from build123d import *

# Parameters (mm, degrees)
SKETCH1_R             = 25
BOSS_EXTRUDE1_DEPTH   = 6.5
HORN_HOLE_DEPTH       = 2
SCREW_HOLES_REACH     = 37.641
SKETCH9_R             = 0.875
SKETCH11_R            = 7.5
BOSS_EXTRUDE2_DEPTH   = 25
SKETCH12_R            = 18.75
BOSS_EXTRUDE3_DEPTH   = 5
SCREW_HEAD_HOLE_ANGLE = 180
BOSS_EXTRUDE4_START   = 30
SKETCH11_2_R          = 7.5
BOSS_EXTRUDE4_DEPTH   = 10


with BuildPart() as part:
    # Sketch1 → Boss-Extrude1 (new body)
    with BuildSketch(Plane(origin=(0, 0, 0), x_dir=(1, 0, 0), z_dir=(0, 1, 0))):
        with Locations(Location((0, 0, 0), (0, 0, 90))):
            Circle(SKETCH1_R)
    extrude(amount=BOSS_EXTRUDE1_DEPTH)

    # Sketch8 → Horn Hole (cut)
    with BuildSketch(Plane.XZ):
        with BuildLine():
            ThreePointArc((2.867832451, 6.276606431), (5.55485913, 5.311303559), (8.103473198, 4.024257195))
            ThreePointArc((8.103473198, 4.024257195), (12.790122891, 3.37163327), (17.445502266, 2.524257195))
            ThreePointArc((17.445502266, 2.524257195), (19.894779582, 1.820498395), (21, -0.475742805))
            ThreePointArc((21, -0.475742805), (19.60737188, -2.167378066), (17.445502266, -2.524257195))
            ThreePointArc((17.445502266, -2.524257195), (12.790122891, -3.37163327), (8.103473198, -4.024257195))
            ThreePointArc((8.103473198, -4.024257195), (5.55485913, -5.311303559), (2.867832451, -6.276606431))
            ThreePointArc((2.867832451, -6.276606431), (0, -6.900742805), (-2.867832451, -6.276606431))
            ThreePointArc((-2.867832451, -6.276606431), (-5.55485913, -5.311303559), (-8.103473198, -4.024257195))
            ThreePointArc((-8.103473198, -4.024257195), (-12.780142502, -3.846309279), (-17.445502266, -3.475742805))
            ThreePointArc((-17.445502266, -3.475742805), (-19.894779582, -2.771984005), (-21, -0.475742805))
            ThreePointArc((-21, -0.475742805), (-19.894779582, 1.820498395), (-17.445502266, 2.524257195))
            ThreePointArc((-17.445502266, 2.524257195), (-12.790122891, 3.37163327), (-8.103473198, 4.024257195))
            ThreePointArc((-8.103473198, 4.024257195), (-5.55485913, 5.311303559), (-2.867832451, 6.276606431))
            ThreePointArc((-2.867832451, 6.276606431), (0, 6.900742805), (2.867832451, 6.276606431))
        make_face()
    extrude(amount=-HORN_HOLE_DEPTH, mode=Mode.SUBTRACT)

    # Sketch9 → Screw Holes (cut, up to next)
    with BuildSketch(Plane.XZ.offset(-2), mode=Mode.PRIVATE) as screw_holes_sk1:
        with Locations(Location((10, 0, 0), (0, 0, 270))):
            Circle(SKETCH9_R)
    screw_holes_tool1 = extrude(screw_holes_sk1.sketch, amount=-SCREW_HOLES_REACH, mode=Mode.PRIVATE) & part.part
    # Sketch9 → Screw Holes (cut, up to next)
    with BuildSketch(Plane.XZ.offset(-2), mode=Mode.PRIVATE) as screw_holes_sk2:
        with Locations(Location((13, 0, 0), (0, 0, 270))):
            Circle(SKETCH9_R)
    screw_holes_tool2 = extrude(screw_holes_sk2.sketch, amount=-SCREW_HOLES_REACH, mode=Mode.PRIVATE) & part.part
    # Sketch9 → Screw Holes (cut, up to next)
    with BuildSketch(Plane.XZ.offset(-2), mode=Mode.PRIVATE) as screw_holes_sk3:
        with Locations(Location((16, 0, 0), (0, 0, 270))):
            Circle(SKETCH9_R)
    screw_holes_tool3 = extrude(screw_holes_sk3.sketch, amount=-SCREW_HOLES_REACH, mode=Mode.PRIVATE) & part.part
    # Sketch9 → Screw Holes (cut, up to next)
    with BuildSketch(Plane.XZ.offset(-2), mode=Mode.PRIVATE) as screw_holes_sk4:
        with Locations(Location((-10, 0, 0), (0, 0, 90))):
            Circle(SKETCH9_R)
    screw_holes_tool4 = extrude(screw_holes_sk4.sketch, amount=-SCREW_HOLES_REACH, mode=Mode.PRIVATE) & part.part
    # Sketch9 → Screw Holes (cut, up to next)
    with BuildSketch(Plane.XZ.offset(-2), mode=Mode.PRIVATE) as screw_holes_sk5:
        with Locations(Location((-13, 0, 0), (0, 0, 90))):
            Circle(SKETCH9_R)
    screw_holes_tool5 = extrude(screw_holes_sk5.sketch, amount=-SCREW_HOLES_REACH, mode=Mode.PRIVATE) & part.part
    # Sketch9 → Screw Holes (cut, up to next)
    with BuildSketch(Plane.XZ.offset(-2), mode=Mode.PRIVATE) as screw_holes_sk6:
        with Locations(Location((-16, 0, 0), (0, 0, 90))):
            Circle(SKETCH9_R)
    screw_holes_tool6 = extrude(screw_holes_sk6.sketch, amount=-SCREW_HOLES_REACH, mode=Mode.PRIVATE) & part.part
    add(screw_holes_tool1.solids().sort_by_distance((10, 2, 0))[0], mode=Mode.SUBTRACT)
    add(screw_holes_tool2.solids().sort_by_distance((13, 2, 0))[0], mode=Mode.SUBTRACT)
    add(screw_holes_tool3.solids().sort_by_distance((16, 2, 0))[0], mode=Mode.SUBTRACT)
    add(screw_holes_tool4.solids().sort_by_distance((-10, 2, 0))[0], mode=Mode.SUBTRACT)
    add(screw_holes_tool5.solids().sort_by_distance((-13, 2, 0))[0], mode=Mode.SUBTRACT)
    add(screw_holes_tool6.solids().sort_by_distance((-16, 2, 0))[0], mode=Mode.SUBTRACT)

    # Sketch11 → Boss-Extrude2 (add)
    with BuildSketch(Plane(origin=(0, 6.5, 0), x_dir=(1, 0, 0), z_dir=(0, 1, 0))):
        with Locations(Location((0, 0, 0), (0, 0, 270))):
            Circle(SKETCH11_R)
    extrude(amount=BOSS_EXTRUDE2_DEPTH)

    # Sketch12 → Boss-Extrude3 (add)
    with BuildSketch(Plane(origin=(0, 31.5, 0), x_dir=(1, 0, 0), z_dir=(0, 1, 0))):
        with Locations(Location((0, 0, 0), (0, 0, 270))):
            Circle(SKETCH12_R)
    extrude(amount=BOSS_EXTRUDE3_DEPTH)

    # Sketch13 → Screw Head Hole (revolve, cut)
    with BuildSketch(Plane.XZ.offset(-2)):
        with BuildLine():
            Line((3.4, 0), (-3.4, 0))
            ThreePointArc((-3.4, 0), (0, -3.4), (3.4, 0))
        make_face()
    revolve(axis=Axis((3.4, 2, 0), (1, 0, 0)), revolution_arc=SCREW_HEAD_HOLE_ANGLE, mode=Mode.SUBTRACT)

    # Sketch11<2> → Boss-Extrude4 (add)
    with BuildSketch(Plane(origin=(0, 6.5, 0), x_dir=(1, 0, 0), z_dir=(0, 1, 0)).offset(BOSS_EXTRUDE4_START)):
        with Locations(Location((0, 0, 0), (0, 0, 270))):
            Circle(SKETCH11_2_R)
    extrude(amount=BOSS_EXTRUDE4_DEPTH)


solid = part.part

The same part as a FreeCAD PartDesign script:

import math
import FreeCAD as App
import Part
import Sketcher

V = App.Vector

doc = App.newDocument("Part")
body = doc.addObject("PartDesign::Body", "Body")

# Sketch on XZ plane
sketch1 = doc.addObject("Sketcher::SketchObject", "Sketch")
body.addObject(sketch1)
sketch1.AttachmentSupport = (doc.XZ_Plane, [""])
sketch1.MapMode = "FlatFace"
sketch1.addGeometry(Part.Circle(V(0, 0, 0), V(0, 0, 1), 25), False)
sketch1.addConstraint([
    Sketcher.Constraint("Coincident", 0, 3, -1, 1),
    Sketcher.Constraint("Diameter", 0, 50.0),
])
pad1 = doc.addObject("PartDesign::Pad", "Pad")
body.addObject(pad1)
pad1.Profile = sketch1
pad1.Length = 6.5
pad1.Reversed = True

# Sketch on XZ plane
sketch2 = doc.addObject("Sketcher::SketchObject", "Sketch001")
body.addObject(sketch2)
sketch2.AttachmentSupport = (doc.XZ_Plane, [""])
sketch2.MapMode = "FlatFace"
sketch2.addGeometry([
    Part.ArcOfCircle(Part.Circle(V(-3.6, -16.1, 0), V(0, 0, 1), 23.3), math.radians(59.69), math.radians(73.76)),  # 0
    Part.ArcOfCircle(Part.Circle(V(0, 0, 0), V(0, 0, 1), 6.9), math.radians(65), math.radians(115)),  # 1
    Part.ArcOfCircle(Part.Circle(V(3.6, -16.1, 0), V(0, 0, 1), 23.3), math.radians(106.24), math.radians(120.31)),  # 2
    Part.ArcOfCircle(Part.Circle(V(5.2, -108.7, 0), V(0, 0, 1), 113.5), math.radians(96.73), math.radians(101.51)),  # 3
    Part.ArcOfCircle(Part.Circle(V(-17.9, -0.6, 0), V(0, 0, 1), 3.1), math.radians(82), math.radians(178)),  # 4
    Part.ArcOfCircle(Part.Circle(V(-17.9, -0.4, 0), V(0, 0, 1), 3.1), math.radians(-178), math.radians(-82)),  # 5
    Part.ArcOfCircle(Part.Circle(V(-6.1, 109.5, 0), V(0, 0, 1), 113.5), math.radians(-95.72), math.radians(-91)),  # 6
    Part.ArcOfCircle(Part.Circle(V(3.6, 16.1, 0), V(0, 0, 1), 23.3), math.radians(-120.31), math.radians(-106.24)),  # 7
    Part.ArcOfCircle(Part.Circle(V(0, 0, 0), V(0, 0, 1), 6.9), math.radians(-115), math.radians(-65)),  # 8
    Part.ArcOfCircle(Part.Circle(V(-3.6, 16.1, 0), V(0, 0, 1), 23.3), math.radians(-73.76), math.radians(-59.69)),  # 9
    Part.ArcOfCircle(Part.Circle(V(-5.2, 108.7, 0), V(0, 0, 1), 113.5), math.radians(-83.27), math.radians(-78.49)),  # 10
    Part.ArcOfCircle(Part.Circle(V(18.1, 0.5, 0), V(0, 0, 1), 3.1), math.radians(-101), math.radians(-19)),  # 11
    Part.ArcOfCircle(Part.Circle(V(17.9, -0.6, 0), V(0, 0, 1), 3.1), math.radians(2), math.radians(98)),  # 12
    Part.ArcOfCircle(Part.Circle(V(-5.2, -108.7, 0), V(0, 0, 1), 113.5), math.radians(78.49), math.radians(83.27)),  # 13
], False)
sketch2.addConstraint([
    Sketcher.Constraint("Coincident", 0, 2, 1, 1),
    Sketcher.Constraint("Coincident", 1, 2, 2, 1),
    Sketcher.Constraint("Coincident", 2, 2, 3, 1),
    Sketcher.Constraint("Coincident", 3, 2, 4, 1),
    Sketcher.Constraint("Coincident", 4, 2, 5, 1),
    Sketcher.Constraint("Coincident", 5, 2, 6, 1),
    Sketcher.Constraint("Coincident", 6, 2, 7, 1),
    Sketcher.Constraint("Coincident", 7, 2, 8, 1),
    Sketcher.Constraint("Coincident", 8, 2, 9, 1),
    Sketcher.Constraint("Coincident", 9, 2, 10, 1),
    Sketcher.Constraint("Coincident", 10, 2, 11, 1),
    Sketcher.Constraint("Coincident", 11, 2, 12, 1),
    Sketcher.Constraint("Coincident", 12, 2, 13, 1),
    Sketcher.Constraint("Coincident", 13, 2, 0, 1),
    Sketcher.Constraint("Coincident", 1, 3, -1, 1),
    Sketcher.Constraint("Coincident", 8, 3, -1, 1),
    Sketcher.Constraint("Equal", 0, 2),
    Sketcher.Constraint("Equal", 4, 5),
    Sketcher.Constraint("Equal", 3, 6),
    Sketcher.Constraint("Equal", 2, 7),
    Sketcher.Constraint("Equal", 1, 8),
    Sketcher.Constraint("Equal", 7, 9),
    Sketcher.Constraint("Equal", 6, 10),
    Sketcher.Constraint("Equal", 5, 11),
    Sketcher.Constraint("Equal", 11, 12),
    Sketcher.Constraint("Equal", 10, 13),
    Sketcher.Constraint("Symmetric", 0, 3, 7, 3, -1, 1),
    Sketcher.Constraint("Symmetric", 2, 3, 9, 3, -1, 1),
    Sketcher.Constraint("Symmetric", 3, 3, 10, 3, -1, 1),
    Sketcher.Constraint("Symmetric", 0, 3, 2, 3, -2),
    Sketcher.Constraint("Symmetric", 4, 3, 12, 3, -2),
    Sketcher.Constraint("Symmetric", 3, 3, 13, 3, -2),
    Sketcher.Constraint("Horizontal", 6, 2, 9, 2),
    Sketcher.Constraint("Horizontal", 4, 2, 11, 2),
    Sketcher.Constraint("Vertical", 4, 3, 5, 3),
    Sketcher.Constraint("Vertical", 3, 2, 5, 2),
    Sketcher.Constraint("Vertical", 10, 2, 12, 2),
    Sketcher.Constraint("DistanceX", 4, 2, -1, 1, 21.0),
    Sketcher.Constraint("DistanceY", 4, 2, 3, 2, 3.0),
    Sketcher.Constraint("DistanceY", 3, 2, 2, 2, 1.5),
    Sketcher.Constraint("Radius", 3, 113.515772),
    Sketcher.Constraint("Radius", 4, 3.116439),
    Sketcher.Constraint("DistanceX", -1, 1, 3, 3, 5.205999),
    Sketcher.Constraint("Radius", 0, 23.274404),
    Sketcher.Constraint("Radius", 1, 6.900743),
    Sketcher.Constraint("DistanceY", -1, 1, 6, 3, 109.474299),
    Sketcher.Constraint("DistanceY", 3, 3, -1, 1, 108.708561),
    Sketcher.Constraint("DistanceX", 0, 3, 2, 3, 7.285409),
])
pocket1 = doc.addObject("PartDesign::Pocket", "Pocket")
body.addObject(pocket1)
pocket1.Profile = sketch2
pocket1.Length = 2

# Sketch on XZ plane
sketch3 = doc.addObject("Sketcher::SketchObject", "Sketch002")
body.addObject(sketch3)
sketch3.AttachmentSupport = (doc.XZ_Plane, [""])
sketch3.MapMode = "FlatFace"
sketch3.AttachmentOffset = App.Placement(V(0, 0, -2), App.Rotation())
sketch3.addGeometry(Part.Circle(V(10, 0, 0), V(0, 0, 1), 0.9), False)
sketch3.addConstraint([
    Sketcher.Constraint("PointOnObject", 0, 3, -1),
    Sketcher.Constraint("Diameter", 0, 1.75),
    Sketcher.Constraint("DistanceX", -1, 1, 0, 3, 10.0),
])
pocket2 = doc.addObject("PartDesign::Pocket", "Pocket001")
body.addObject(pocket2)
pocket2.Profile = sketch3
pocket2.Type = "UpToFirst"

# Sketch on XZ plane
sketch4 = doc.addObject("Sketcher::SketchObject", "Sketch003")
body.addObject(sketch4)
sketch4.AttachmentSupport = (doc.XZ_Plane, [""])
sketch4.MapMode = "FlatFace"
sketch4.AttachmentOffset = App.Placement(V(0, 0, -2), App.Rotation())
sketch4.addGeometry(Part.Circle(V(13, 0, 0), V(0, 0, 1), 0.9), False)
sketch4.addConstraint([
    Sketcher.Constraint("PointOnObject", 0, 3, -1),
    Sketcher.Constraint("Diameter", 0, 1.75),
    Sketcher.Constraint("DistanceX", -1, 1, 0, 3, 13.0),
])
pocket3 = doc.addObject("PartDesign::Pocket", "Pocket002")
body.addObject(pocket3)
pocket3.Profile = sketch4
pocket3.Type = "UpToFirst"

# Sketch on XZ plane
sketch5 = doc.addObject("Sketcher::SketchObject", "Sketch004")
body.addObject(sketch5)
sketch5.AttachmentSupport = (doc.XZ_Plane, [""])
sketch5.MapMode = "FlatFace"
sketch5.AttachmentOffset = App.Placement(V(0, 0, -2), App.Rotation())
sketch5.addGeometry(Part.Circle(V(16, 0, 0), V(0, 0, 1), 0.9), False)
sketch5.addConstraint([
    Sketcher.Constraint("PointOnObject", 0, 3, -1),
    Sketcher.Constraint("Diameter", 0, 1.75),
    Sketcher.Constraint("DistanceX", -1, 1, 0, 3, 16.0),
])
pocket4 = doc.addObject("PartDesign::Pocket", "Pocket003")
body.addObject(pocket4)
pocket4.Profile = sketch5
pocket4.Type = "UpToFirst"

# Sketch on XZ plane
sketch6 = doc.addObject("Sketcher::SketchObject", "Sketch005")
body.addObject(sketch6)
sketch6.AttachmentSupport = (doc.XZ_Plane, [""])
sketch6.MapMode = "FlatFace"
sketch6.AttachmentOffset = App.Placement(V(0, 0, -2), App.Rotation())
sketch6.addGeometry(Part.Circle(V(-10, 0, 0), V(0, 0, 1), 0.9), False)
sketch6.addConstraint([
    Sketcher.Constraint("PointOnObject", 0, 3, -1),
    Sketcher.Constraint("Diameter", 0, 1.75),
    Sketcher.Constraint("DistanceX", 0, 3, -1, 1, 10.0),
])
pocket5 = doc.addObject("PartDesign::Pocket", "Pocket004")
body.addObject(pocket5)
pocket5.Profile = sketch6
pocket5.Type = "UpToFirst"

# Sketch on XZ plane
sketch7 = doc.addObject("Sketcher::SketchObject", "Sketch006")
body.addObject(sketch7)
sketch7.AttachmentSupport = (doc.XZ_Plane, [""])
sketch7.MapMode = "FlatFace"
sketch7.AttachmentOffset = App.Placement(V(0, 0, -2), App.Rotation())
sketch7.addGeometry(Part.Circle(V(-13, 0, 0), V(0, 0, 1), 0.9), False)
sketch7.addConstraint([
    Sketcher.Constraint("PointOnObject", 0, 3, -1),
    Sketcher.Constraint("Diameter", 0, 1.75),
    Sketcher.Constraint("DistanceX", 0, 3, -1, 1, 13.0),
])
pocket6 = doc.addObject("PartDesign::Pocket", "Pocket005")
body.addObject(pocket6)
pocket6.Profile = sketch7
pocket6.Type = "UpToFirst"

# Sketch on XZ plane
sketch8 = doc.addObject("Sketcher::SketchObject", "Sketch007")
body.addObject(sketch8)
sketch8.AttachmentSupport = (doc.XZ_Plane, [""])
sketch8.MapMode = "FlatFace"
sketch8.AttachmentOffset = App.Placement(V(0, 0, -2), App.Rotation())
sketch8.addGeometry(Part.Circle(V(-16, 0, 0), V(0, 0, 1), 0.9), False)
sketch8.addConstraint([
    Sketcher.Constraint("PointOnObject", 0, 3, -1),
    Sketcher.Constraint("Diameter", 0, 1.75),
    Sketcher.Constraint("DistanceX", 0, 3, -1, 1, 16.0),
])
pocket7 = doc.addObject("PartDesign::Pocket", "Pocket006")
body.addObject(pocket7)
pocket7.Profile = sketch8
pocket7.Type = "UpToFirst"

# Sketch on XZ plane
sketch9 = doc.addObject("Sketcher::SketchObject", "Sketch008")
body.addObject(sketch9)
sketch9.AttachmentSupport = (doc.XZ_Plane, [""])
sketch9.MapMode = "FlatFace"
sketch9.AttachmentOffset = App.Placement(V(0, 0, -6.5), App.Rotation())
sketch9.addGeometry(Part.Circle(V(0, 0, 0), V(0, 0, 1), 8), False)
sketch9.addConstraint([
    Sketcher.Constraint("Coincident", 0, 3, -1, 1),
    Sketcher.Constraint("Diameter", 0, 15.0),
])
pad2 = doc.addObject("PartDesign::Pad", "Pad001")
body.addObject(pad2)
pad2.Profile = sketch9
pad2.Length = 25
pad2.Reversed = True

# Sketch on XZ plane
sketch10 = doc.addObject("Sketcher::SketchObject", "Sketch009")
body.addObject(sketch10)
sketch10.AttachmentSupport = (doc.XZ_Plane, [""])
sketch10.MapMode = "FlatFace"
sketch10.AttachmentOffset = App.Placement(V(0, 0, -31.5), App.Rotation())
sketch10.addGeometry(Part.Circle(V(0, 0, 0), V(0, 0, 1), 19), False)
sketch10.addConstraint([
    Sketcher.Constraint("Coincident", 0, 3, -1, 1),
    Sketcher.Constraint("Diameter", 0, 37.5),
])
pad3 = doc.addObject("PartDesign::Pad", "Pad002")
body.addObject(pad3)
pad3.Profile = sketch10
pad3.Length = 5
pad3.Reversed = True

# Sketch on XZ plane
sketch11 = doc.addObject("Sketcher::SketchObject", "Sketch010")
body.addObject(sketch11)
sketch11.AttachmentSupport = (doc.XZ_Plane, [""])
sketch11.MapMode = "FlatFace"
sketch11.AttachmentOffset = App.Placement(V(0, 0, -2), App.Rotation())
sketch11.addGeometry([
    Part.LineSegment(V(3.4, 0, 0), V(-3.4, 0, 0)),
    Part.ArcOfCircle(Part.Circle(V(0, 0, 0), V(0, 0, 1), 3.4), math.radians(180), math.radians(360)),
], False)
sketch11.addConstraint([
    Sketcher.Constraint("Coincident", 0, 1, 1, 2),
    Sketcher.Constraint("Coincident", 1, 1, 0, 2),
    Sketcher.Constraint("Horizontal", 0),
    Sketcher.Constraint("Coincident", 1, 3, -1, 1),
    Sketcher.Constraint("PointOnObject", 0, 1, -1),
    Sketcher.Constraint("Radius", 1, 3.4),
])
groove = doc.addObject("PartDesign::Groove", "Groove")
body.addObject(groove)
groove.Profile = sketch11
groove.ReferenceAxis = (sketch11, ["H_Axis"])
groove.Angle = 180

# Sketch on XZ plane
sketch12 = doc.addObject("Sketcher::SketchObject", "Sketch011")
body.addObject(sketch12)
sketch12.AttachmentSupport = (doc.XZ_Plane, [""])
sketch12.MapMode = "FlatFace"
sketch12.AttachmentOffset = App.Placement(V(0, 0, -36.5), App.Rotation())
sketch12.addGeometry(Part.Circle(V(0, 0, 0), V(0, 0, 1), 8), False)
sketch12.addConstraint([
    Sketcher.Constraint("Coincident", 0, 3, -1, 1),
    Sketcher.Constraint("Diameter", 0, 15.0),
])
pad4 = doc.addObject("PartDesign::Pad", "Pad003")
body.addObject(pad4)
pad4.Profile = sketch12
pad4.Length = 10
pad4.Reversed = True

doc.recompute()
